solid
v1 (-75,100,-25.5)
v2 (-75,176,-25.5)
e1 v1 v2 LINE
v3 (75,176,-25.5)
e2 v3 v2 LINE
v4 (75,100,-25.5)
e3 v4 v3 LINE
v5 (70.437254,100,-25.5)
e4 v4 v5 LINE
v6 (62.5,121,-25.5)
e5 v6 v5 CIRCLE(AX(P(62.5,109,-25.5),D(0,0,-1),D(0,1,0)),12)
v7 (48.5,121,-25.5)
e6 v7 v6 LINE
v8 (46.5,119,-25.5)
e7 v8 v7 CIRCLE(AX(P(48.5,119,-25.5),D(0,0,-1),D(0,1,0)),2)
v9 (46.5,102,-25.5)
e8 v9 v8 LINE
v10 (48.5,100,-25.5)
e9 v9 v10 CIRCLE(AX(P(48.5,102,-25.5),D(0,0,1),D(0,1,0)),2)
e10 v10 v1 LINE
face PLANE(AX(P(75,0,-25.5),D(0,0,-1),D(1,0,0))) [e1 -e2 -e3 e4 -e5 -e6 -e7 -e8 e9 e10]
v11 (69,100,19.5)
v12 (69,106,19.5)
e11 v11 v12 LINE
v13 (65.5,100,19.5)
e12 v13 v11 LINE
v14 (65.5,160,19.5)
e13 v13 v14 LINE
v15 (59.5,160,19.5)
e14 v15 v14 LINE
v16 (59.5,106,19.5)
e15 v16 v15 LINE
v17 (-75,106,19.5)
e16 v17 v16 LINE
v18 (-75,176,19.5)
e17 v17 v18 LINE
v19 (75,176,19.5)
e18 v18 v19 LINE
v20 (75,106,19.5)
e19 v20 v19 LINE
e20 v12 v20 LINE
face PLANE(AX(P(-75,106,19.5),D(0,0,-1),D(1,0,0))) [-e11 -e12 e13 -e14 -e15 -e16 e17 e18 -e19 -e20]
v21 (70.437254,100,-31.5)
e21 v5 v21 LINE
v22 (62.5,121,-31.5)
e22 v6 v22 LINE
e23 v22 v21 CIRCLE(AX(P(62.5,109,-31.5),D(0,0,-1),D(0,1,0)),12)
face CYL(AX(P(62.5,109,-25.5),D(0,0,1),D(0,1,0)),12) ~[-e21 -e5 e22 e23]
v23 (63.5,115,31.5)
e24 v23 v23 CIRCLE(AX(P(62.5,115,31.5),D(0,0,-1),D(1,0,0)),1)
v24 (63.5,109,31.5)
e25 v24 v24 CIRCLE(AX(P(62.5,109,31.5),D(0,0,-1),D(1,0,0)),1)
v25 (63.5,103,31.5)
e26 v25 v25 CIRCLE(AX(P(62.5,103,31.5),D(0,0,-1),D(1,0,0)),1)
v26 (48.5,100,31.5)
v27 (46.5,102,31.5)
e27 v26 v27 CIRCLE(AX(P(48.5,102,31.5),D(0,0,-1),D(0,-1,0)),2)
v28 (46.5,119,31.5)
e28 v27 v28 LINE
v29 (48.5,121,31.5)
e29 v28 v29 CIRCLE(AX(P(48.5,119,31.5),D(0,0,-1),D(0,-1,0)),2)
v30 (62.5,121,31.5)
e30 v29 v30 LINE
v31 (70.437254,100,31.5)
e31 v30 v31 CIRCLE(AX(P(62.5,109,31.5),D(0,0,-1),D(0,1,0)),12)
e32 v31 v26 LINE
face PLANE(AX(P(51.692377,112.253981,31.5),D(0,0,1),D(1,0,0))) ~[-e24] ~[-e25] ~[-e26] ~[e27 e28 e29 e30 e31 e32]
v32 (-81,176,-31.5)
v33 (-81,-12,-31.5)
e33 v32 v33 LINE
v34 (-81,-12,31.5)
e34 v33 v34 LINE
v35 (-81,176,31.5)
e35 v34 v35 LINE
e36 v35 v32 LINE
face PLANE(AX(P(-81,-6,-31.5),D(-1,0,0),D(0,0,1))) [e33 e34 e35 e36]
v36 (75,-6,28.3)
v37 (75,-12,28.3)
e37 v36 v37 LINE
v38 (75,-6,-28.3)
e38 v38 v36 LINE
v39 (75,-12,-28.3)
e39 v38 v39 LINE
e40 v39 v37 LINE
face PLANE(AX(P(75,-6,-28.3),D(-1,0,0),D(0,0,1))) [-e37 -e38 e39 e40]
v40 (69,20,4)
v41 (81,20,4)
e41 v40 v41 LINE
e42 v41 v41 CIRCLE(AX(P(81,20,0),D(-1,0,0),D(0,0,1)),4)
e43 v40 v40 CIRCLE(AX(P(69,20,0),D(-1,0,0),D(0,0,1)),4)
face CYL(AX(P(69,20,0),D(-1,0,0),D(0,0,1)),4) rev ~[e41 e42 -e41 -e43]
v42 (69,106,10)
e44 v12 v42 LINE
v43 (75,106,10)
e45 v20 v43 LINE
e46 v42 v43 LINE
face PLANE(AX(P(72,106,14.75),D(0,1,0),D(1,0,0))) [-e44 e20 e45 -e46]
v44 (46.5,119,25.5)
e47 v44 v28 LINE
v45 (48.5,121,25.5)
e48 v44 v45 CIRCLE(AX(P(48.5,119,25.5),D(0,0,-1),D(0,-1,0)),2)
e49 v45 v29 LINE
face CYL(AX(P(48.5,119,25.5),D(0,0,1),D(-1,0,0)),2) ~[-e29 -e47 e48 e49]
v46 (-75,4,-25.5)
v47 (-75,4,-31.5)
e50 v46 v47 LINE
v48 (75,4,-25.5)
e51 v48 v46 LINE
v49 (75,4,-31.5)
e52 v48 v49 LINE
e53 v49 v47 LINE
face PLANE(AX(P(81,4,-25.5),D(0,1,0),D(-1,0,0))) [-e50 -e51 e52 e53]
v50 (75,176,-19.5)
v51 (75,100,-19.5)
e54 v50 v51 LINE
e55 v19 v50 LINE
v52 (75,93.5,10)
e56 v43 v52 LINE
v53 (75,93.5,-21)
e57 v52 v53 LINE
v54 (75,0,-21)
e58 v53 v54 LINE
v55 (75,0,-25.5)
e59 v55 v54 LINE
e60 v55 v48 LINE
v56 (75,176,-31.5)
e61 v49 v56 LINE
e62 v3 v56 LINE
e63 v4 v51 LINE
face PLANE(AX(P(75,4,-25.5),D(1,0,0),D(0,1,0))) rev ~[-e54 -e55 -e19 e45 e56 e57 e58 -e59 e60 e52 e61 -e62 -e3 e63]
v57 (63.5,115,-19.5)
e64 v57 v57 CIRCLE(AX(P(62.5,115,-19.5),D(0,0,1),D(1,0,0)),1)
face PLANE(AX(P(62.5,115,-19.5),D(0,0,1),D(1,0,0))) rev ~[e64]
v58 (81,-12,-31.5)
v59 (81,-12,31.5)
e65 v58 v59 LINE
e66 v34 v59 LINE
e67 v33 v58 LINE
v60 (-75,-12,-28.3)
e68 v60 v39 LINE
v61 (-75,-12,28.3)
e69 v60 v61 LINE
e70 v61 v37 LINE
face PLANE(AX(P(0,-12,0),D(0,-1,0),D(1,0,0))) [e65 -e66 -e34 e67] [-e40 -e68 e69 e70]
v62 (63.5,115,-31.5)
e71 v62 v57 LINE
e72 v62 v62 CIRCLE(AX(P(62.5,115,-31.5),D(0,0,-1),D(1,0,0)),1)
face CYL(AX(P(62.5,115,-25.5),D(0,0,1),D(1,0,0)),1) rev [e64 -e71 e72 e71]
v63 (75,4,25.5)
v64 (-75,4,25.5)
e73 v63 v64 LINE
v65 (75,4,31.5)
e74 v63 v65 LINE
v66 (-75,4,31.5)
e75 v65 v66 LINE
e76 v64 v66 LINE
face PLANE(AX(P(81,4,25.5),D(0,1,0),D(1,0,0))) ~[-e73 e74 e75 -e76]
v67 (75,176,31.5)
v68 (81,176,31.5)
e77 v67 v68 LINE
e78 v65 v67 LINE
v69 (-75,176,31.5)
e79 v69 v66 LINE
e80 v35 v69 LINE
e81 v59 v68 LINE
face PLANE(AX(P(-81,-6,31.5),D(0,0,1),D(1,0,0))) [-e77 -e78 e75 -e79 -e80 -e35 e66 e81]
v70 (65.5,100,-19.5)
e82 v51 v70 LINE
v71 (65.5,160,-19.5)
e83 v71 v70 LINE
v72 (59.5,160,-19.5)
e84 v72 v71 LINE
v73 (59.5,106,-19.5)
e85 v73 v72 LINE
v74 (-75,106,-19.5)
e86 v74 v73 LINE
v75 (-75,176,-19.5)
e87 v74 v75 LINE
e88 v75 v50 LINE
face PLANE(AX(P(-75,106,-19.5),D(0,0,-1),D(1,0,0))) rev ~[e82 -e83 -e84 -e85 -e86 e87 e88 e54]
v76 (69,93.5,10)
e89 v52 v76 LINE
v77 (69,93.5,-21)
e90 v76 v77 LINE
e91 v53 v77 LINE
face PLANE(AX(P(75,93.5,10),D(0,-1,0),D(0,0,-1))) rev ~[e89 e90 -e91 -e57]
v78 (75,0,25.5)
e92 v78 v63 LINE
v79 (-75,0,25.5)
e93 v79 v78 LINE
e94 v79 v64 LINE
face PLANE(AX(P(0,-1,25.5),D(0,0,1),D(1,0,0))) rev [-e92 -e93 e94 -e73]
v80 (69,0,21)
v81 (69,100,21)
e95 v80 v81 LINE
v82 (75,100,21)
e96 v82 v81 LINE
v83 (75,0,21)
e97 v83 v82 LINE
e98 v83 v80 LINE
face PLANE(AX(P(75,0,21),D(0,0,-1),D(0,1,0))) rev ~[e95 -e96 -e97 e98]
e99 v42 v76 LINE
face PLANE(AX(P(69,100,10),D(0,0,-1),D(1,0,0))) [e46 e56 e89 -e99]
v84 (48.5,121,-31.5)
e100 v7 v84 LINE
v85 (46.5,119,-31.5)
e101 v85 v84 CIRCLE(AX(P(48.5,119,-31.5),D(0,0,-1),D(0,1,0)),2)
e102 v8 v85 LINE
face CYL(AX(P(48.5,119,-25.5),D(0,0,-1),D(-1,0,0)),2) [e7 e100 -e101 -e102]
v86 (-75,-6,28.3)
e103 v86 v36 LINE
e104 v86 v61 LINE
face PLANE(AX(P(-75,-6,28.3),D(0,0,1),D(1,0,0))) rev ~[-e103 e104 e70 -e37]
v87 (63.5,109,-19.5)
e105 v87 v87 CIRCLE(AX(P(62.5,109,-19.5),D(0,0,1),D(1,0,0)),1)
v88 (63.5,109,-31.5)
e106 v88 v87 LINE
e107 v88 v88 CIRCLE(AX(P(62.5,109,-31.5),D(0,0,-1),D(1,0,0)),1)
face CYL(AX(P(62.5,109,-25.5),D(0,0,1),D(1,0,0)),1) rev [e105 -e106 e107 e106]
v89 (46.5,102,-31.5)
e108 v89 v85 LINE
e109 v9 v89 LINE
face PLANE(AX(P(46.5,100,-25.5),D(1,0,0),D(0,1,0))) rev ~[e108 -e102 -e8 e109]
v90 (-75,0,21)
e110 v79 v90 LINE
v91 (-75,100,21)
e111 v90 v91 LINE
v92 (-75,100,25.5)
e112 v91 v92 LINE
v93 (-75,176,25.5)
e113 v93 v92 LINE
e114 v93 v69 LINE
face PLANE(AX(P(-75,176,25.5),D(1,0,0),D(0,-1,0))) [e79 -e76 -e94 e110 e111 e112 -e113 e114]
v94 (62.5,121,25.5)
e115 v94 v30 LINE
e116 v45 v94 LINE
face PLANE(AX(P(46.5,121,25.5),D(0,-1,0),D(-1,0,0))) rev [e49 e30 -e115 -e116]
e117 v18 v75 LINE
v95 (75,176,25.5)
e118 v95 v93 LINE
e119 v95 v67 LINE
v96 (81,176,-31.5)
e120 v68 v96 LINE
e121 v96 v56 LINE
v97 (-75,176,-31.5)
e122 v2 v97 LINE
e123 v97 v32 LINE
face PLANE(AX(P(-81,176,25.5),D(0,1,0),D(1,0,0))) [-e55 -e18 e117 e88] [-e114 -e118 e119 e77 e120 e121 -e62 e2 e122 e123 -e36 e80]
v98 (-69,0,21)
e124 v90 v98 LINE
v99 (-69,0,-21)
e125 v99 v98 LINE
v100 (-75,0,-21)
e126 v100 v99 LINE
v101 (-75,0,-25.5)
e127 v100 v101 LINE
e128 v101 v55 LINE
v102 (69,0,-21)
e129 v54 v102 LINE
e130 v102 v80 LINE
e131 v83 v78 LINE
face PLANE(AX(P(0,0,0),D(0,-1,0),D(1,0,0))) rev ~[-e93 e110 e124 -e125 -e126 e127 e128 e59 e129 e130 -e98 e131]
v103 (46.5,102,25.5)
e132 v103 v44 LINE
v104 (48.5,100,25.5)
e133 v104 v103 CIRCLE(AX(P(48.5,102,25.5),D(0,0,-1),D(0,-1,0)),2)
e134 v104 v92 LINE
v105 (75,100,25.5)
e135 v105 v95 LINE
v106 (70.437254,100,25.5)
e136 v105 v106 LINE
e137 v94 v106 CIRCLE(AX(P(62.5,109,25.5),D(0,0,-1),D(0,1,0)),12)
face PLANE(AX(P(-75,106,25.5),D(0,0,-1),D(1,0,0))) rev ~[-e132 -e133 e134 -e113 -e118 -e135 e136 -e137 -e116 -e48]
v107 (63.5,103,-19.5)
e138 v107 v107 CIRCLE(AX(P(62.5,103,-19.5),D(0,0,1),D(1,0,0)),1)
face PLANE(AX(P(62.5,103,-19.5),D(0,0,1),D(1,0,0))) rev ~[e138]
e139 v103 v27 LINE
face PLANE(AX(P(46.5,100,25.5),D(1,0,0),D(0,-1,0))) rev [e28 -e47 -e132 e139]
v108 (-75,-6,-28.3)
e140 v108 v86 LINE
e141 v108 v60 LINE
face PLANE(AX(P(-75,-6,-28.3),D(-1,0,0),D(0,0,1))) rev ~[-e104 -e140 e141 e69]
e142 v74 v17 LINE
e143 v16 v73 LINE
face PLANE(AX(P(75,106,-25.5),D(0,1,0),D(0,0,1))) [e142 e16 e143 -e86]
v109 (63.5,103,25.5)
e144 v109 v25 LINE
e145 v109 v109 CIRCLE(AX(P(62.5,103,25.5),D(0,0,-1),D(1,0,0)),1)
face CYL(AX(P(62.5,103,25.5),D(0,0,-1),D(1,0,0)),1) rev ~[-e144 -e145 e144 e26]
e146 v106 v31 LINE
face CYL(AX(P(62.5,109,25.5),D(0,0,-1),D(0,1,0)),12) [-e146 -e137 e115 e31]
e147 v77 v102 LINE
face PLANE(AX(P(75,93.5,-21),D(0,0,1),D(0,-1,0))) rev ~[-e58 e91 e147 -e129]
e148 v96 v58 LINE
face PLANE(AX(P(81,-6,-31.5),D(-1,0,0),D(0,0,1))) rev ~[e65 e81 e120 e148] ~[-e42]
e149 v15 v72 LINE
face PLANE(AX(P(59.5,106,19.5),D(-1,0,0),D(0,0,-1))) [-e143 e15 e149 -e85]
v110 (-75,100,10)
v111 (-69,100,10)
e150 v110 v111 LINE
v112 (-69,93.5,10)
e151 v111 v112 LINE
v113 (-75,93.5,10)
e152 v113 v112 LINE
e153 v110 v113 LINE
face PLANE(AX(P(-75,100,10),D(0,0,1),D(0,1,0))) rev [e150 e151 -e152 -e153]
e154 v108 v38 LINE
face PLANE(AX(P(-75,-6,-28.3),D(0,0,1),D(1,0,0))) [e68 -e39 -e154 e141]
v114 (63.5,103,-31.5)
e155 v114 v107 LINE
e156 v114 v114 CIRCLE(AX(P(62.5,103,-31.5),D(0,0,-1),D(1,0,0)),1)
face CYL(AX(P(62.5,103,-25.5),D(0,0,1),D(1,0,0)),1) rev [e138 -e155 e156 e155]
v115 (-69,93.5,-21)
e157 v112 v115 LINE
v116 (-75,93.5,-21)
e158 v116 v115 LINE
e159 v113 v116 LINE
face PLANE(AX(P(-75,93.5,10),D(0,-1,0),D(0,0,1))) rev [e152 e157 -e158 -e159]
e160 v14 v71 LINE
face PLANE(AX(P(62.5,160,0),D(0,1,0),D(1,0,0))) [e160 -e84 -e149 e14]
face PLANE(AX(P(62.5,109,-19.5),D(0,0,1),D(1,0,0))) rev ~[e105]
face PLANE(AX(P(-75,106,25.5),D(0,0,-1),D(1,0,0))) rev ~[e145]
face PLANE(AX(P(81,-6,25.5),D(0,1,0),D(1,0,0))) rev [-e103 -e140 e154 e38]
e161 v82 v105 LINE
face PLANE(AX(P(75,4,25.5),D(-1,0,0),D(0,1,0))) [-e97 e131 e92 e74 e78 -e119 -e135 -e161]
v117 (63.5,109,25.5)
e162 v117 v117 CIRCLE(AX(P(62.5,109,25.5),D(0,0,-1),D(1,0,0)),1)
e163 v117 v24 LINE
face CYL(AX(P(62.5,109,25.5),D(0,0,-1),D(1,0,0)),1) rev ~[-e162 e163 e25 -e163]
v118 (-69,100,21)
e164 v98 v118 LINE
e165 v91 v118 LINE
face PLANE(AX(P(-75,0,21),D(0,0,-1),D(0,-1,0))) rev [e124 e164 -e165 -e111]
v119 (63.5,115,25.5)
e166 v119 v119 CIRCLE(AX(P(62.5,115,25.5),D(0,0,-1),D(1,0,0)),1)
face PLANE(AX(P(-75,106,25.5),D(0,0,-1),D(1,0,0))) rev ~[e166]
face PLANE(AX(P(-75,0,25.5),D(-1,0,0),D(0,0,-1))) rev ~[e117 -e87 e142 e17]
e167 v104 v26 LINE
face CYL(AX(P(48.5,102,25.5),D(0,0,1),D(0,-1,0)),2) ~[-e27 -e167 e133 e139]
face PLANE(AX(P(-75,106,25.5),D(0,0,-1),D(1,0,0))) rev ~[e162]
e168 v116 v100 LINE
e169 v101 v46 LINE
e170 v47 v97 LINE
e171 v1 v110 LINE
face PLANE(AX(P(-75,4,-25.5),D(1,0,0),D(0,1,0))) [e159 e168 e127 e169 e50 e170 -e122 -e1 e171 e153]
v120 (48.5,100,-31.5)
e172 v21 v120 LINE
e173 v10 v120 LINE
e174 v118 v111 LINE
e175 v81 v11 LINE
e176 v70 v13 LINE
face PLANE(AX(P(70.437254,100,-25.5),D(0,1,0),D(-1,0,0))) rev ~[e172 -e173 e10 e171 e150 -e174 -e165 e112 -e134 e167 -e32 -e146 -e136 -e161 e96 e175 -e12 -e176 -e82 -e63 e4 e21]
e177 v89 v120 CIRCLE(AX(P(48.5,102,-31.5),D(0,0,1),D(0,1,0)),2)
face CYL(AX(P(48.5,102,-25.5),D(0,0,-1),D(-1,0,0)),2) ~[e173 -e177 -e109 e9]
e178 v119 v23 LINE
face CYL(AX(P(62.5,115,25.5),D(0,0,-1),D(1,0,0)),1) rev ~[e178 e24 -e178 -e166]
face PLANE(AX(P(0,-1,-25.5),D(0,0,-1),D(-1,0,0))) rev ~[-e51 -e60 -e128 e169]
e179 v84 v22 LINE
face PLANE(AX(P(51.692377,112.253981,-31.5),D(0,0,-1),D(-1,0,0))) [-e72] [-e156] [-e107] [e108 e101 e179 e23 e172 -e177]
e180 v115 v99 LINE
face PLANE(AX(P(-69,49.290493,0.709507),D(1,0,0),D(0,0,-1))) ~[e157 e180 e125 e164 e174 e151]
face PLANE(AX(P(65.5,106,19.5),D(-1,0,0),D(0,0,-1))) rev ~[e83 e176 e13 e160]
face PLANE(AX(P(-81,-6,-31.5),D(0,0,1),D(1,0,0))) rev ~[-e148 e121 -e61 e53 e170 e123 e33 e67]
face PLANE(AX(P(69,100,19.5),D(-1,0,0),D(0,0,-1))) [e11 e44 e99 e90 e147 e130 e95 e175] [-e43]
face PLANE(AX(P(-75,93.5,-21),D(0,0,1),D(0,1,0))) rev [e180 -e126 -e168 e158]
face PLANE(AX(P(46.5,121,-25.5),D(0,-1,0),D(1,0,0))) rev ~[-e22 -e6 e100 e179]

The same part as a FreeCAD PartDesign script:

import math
import FreeCAD as App
import Part
import Sketcher
from FreeCAD import Vector


def edges_at(feature, points):
    """Names of the edges that pass closest to the given points."""
    edges = feature.Shape.Edges
    near = lambda p: min(range(len(edges)), key=lambda i: edges[i].distToShape(Part.Vertex(*p))[0])
    return sorted({f"Edge{near(p) + 1}" for p in points})

doc = App.newDocument("Part")
body = doc.addObject("PartDesign::Body", "Body")
body.AllowCompound = True

sketch1 = doc.addObject("Sketcher::SketchObject", "Sketch")
body.addObject(sketch1)
sketch1.AttachmentSupport = (doc.XZ_Plane, [""])
sketch1.MapMode = "FlatFace"
sketch1.addGeometry(Part.LineSegment(Vector(-75, -21, 0), Vector(-75, 21, 0)), False)
sketch1.addGeometry(Part.LineSegment(Vector(-75, 21, 0), Vector(75, 21, 0)), False)
sketch1.addGeometry(Part.LineSegment(Vector(75, 21, 0), Vector(75, -21, 0)), False)
sketch1.addGeometry(Part.LineSegment(Vector(75, -21, 0), Vector(-75, -21, 0)), False)
sketch1.addConstraint(Sketcher.Constraint("Coincident", 0, 2, 1, 1))
sketch1.addConstraint(Sketcher.Constraint("Coincident", 1, 2, 2, 1))
sketch1.addConstraint(Sketcher.Constraint("Coincident", 2, 2, 3, 1))
sketch1.addConstraint(Sketcher.Constraint("Coincident", 3, 2, 0, 1))
sketch1.addConstraint(Sketcher.Constraint("Vertical", 0))
sketch1.addConstraint(Sketcher.Constraint("Horizontal", 1))
sketch1.addConstraint(Sketcher.Constraint("Vertical", 2))
sketch1.addConstraint(Sketcher.Constraint("Horizontal", 3))
sketch1.addConstraint(Sketcher.Constraint("Symmetric", 0, 2, 2, 2, -1, 1))
sketch1.addConstraint(Sketcher.Constraint("DistanceX", 1, 1, 1, 2, 150.0))
sketch1.addConstraint(Sketcher.Constraint("DistanceY", 0, 1, 0, 2, 42.0))
pad1 = doc.addObject("PartDesign::Pad", "Pad")
body.addObject(pad1)
pad1.Profile = sketch1
pad1.Length = 3.2
pad1.Reversed = True

sketch2 = doc.addObject("Sketcher::SketchObject", "Sketch001")
body.addObject(sketch2)
sketch2.AttachmentSupport = (doc.XZ_Plane, [""])
sketch2.MapMode = "FlatFace"
sketch2.addGeometry(Part.LineSegment(Vector(-81, 25.5, 0), Vector(-81, -25.5, 0)), False)
sketch2.addGeometry(Part.LineSegment(Vector(-81, -25.5, 0), Vector(81, -25.5, 0)), False)
sketch2.addGeometry(Part.LineSegment(Vector(81, -25.5, 0), Vector(81, 25.5, 0)), False)
sketch2.addGeometry(Part.LineSegment(Vector(81, 25.5, 0), Vector(-81, 25.5, 0)), False)
sketch2.addConstraint(Sketcher.Constraint("Coincident", 0, 2, 1, 1))
sketch2.addConstraint(Sketcher.Constraint("Coincident", 1, 2, 2, 1))
sketch2.addConstraint(Sketcher.Constraint("Coincident", 2, 2, 3, 1))
sketch2.addConstraint(Sketcher.Constraint("Coincident", 3, 2, 0, 1))
sketch2.addConstraint(Sketcher.Constraint("Vertical", 0))
sketch2.addConstraint(Sketcher.Constraint("Horizontal", 1))
sketch2.addConstraint(Sketcher.Constraint("Vertical", 2))
sketch2.addConstraint(Sketcher.Constraint("Horizontal", 3))
sketch2.addConstraint(Sketcher.Constraint("Symmetric", 0, 2, 2, 2, -1, 1))
sketch2.addConstraint(Sketcher.Constraint("DistanceX", 1, 1, 1, 2, 162.0))
sketch2.addConstraint(Sketcher.Constraint("DistanceY", 0, 2, 0, 1, 51.0))
pad2 = doc.addObject("PartDesign::Pad", "Pad001")
body.addObject(pad2)
pad2.Profile = sketch2
pad2.Length = 6

sketch3 = doc.addObject("Sketcher::SketchObject", "Sketch002")
body.addObject(sketch3)
sketch3.AttachmentSupport = (doc.XZ_Plane, [""])
sketch3.MapMode = "FlatFace"
sketch3.addGeometry(Part.LineSegment(Vector(75, -25.5, 0), Vector(75, 25.5, 0)), False)
sketch3.addGeometry(Part.LineSegment(Vector(75, 25.5, 0), Vector(81, 25.5, 0)), False)
sketch3.addGeometry(Part.LineSegment(Vector(81, 25.5, 0), Vector(81, -25.5, 0)), False)
sketch3.addGeometry(Part.LineSegment(Vector(81, -25.5, 0), Vector(75, -25.5, 0)), False)
sketch3.addGeometry(Part.LineSegment(Vector(-81, -25.5, 0), Vector(-81, 25.5, 0)), False)
sketch3.addGeometry(Part.LineSegment(Vector(-81, 25.5, 0), Vector(-75, 25.5, 0)), False)
sketch3.addGeometry(Part.LineSegment(Vector(-75, 25.5, 0), Vector(-75, -25.5, 0)), False)
sketch3.addGeometry(Part.LineSegment(Vector(-75, -25.5, 0), Vector(-81, -25.5, 0)), False)
sketch3.addConstraint(Sketcher.Constraint("Coincident", 0, 2, 1, 1))
sketch3.addConstraint(Sketcher.Constraint("Coincident", 1, 2, 2, 1))
sketch3.addConstraint(Sketcher.Constraint("Coincident", 2, 2, 3, 1))
sketch3.addConstraint(Sketcher.Constraint("Coincident", 3, 2, 0, 1))
sketch3.addConstraint(Sketcher.Constraint("Coincident", 4, 2, 5, 1))
sketch3.addConstraint(Sketcher.Constraint("Coincident", 5, 2, 6, 1))
sketch3.addConstraint(Sketcher.Constraint("Coincident", 6, 2, 7, 1))
sketch3.addConstraint(Sketcher.Constraint("Coincident", 7, 2, 4, 1))
sketch3.addConstraint(Sketcher.Constraint("Vertical", 0))
sketch3.addConstraint(Sketcher.Constraint("Horizontal", 1))
sketch3.addConstraint(Sketcher.Constraint("Vertical", 2))
sketch3.addConstraint(Sketcher.Constraint("Horizontal", 3))
sketch3.addConstraint(Sketcher.Constraint("Vertical", 4))
sketch3.addConstraint(Sketcher.Constraint("Horizontal", 5))
sketch3.addConstraint(Sketcher.Constraint("Vertical", 6))
sketch3.addConstraint(Sketcher.Constraint("Horizontal", 7))
sketch3.addConstraint(Sketcher.Constraint("Symmetric", 2, 2, 4, 2, -1, 1))
sketch3.addConstraint(Sketcher.Constraint("Symmetric", 0, 2, 6, 2, -1, 1))
sketch3.addConstraint(Sketcher.Constraint("Horizontal", 1, 2, 4, 2))
sketch3.addConstraint(Sketcher.Constraint("DistanceX", 1, 1, 1, 2, 6.0))
sketch3.addConstraint(Sketcher.Constraint("DistanceY", 0, 1, 0, 2, 51.0))
sketch3.addConstraint(Sketcher.Constraint("DistanceX", -1, 1, 0, 2, 75.0))
pad3 = doc.addObject("PartDesign::Pad", "Pad002")
body.addObject(pad3)
pad3.Profile = sketch3
pad3.Length = 176
pad3.Reversed = True

sketch4 = doc.addObject("Sketcher::SketchObject", "Sketch003")
body.addObject(sketch4)
sketch4.AttachmentSupport = (doc.YZ_Plane, [""])
sketch4.MapMode = "FlatFace"
sketch4.AttachmentOffset = App.Placement(Vector(0, 0, 75), App.Rotation())
sketch4.addGeometry(Part.LineSegment(Vector(106, -25.5, 0), Vector(100, -25.5, 0)), False)
sketch4.addGeometry(Part.LineSegment(Vector(100, -25.5, 0), Vector(100, 25.5, 0)), False)
sketch4.addGeometry(Part.LineSegment(Vector(100, 25.5, 0), Vector(106, 25.5, 0)), False)
sketch4.addGeometry(Part.LineSegment(Vector(106, 25.5, 0), Vector(106, -25.5, 0)), False)
sketch4.addConstraint(Sketcher.Constraint("Coincident", 0, 2, 1, 1))
sketch4.addConstraint(Sketcher.Constraint("Coincident", 1, 2, 2, 1))
sketch4.addConstraint(Sketcher.Constraint("Coincident", 2, 2, 3, 1))
sketch4.addConstraint(Sketcher.Constraint("Coincident", 3, 2, 0, 1))
sketch4.addConstraint(Sketcher.Constraint("Horizontal", 0))
sketch4.addConstraint(Sketcher.Constraint("Vertical", 1))
sketch4.addConstraint(Sketcher.Constraint("Horizontal", 2))
sketch4.addConstraint(Sketcher.Constraint("Vertical", 3))
sketch4.addConstraint(Sketcher.Constraint("DistanceX", 0, 2, 0, 1, 6.0))
sketch4.addConstraint(Sketcher.Constraint("DistanceY", 1, 1, 1, 2, 51.0))
sketch4.addConstraint(Sketcher.Constraint("DistanceX", -1, 1, 0, 2, 100.0))
sketch4.addConstraint(Sketcher.Constraint("DistanceY", 0, 2, -1, 1, 25.5))
pad4 = doc.addObject("PartDesign::Pad", "Pad003")
body.addObject(pad4)
pad4.Profile = sketch4
pad4.Type = "UpToFirst"
pad4.Reversed = True

sketch5 = doc.addObject("Sketcher::SketchObject", "Sketch004")
body.addObject(sketch5)
sketch5.AttachmentSupport = (doc.XZ_Plane, [""])
sketch5.MapMode = "FlatFace"
sketch5.AttachmentOffset = App.Placement(Vector(0, 0, -100), App.Rotation())
sketch5.addGeometry(Part.LineSegment(Vector(-75, -21, 0), Vector(-75, 21, 0)), False)
sketch5.addGeometry(Part.LineSegment(Vector(-75, 21, 0), Vector(75, 21, 0)), False)
sketch5.addGeometry(Part.LineSegment(Vector(75, 21, 0), Vector(75, -21, 0)), False)
sketch5.addGeometry(Part.LineSegment(Vector(75, -21, 0), Vector(-75, -21, 0)), False)
sketch5.addConstraint(Sketcher.Constraint("Coincident", 0, 2, 1, 1))
sketch5.addConstraint(Sketcher.Constraint("Coincident", 1, 2, 2, 1))
sketch5.addConstraint(Sketcher.Constraint("Coincident", 2, 2, 3, 1))
sketch5.addConstraint(Sketcher.Constraint("Coincident", 3, 2, 0, 1))
sketch5.addConstraint(Sketcher.Constraint("Vertical", 0))
sketch5.addConstraint(Sketcher.Constraint("Horizontal", 1))
sketch5.addConstraint(Sketcher.Constraint("Vertical", 2))
sketch5.addConstraint(Sketcher.Constraint("Horizontal", 3))
sketch5.addConstraint(Sketcher.Constraint("Symmetric", 0, 2, 2, 2, -1, 1))
sketch5.addConstraint(Sketcher.Constraint("DistanceX", 1, 1, 1, 2, 150.0))
sketch5.addConstraint(Sketcher.Constraint("DistanceY", 0, 1, 0, 2, 42.0))
pad5 = doc.addObject("PartDesign::Pad", "Pad004")
body.addObject(pad5)
pad5.Profile = sketch5
pad5.Length = 3.2

sketch6 = doc.addObject("Sketcher::SketchObject", "Sketch005")
body.addObject(sketch6)
sketch6.AttachmentSupport = (doc.XZ_Plane, [""])
sketch6.MapMode = "FlatFace"
sketch6.AttachmentOffset = App.Placement(Vector(0, 0, -106), App.Rotation())
sketch6.addGeometry(Part.LineSegment(Vector(-75, 19.5, 0), Vector(-75, 25.5, 0)), False)
sketch6.addGeometry(Part.LineSegment(Vector(-75, 25.5, 0), Vector(75, 25.5, 0)), False)
sketch6.addGeometry(Part.LineSegment(Vector(75, 25.5, 0), Vector(75, 19.5, 0)), False)
sketch6.addGeometry(Part.LineSegment(Vector(75, 19.5, 0), Vector(-75, 19.5, 0)), False)
sketch6.addGeometry(Part.LineSegment(Vector(-75, -25.5, 0), Vector(-75, -19.5, 0)), False)
sketch6.addGeometry(Part.LineSegment(Vector(-75, -19.5, 0), Vector(75, -19.5, 0)), False)
sketch6.addGeometry(Part.LineSegment(Vector(75, -19.5, 0), Vector(75, -25.5, 0)), False)
sketch6.addGeometry(Part.LineSegment(Vector(75, -25.5, 0), Vector(-75, -25.5, 0)), False)
sketch6.addConstraint(Sketcher.Constraint("Coincident", 0, 2, 1, 1))
sketch6.addConstraint(Sketcher.Constraint("Coincident", 1, 2, 2, 1))
sketch6.addConstraint(Sketcher.Constraint("Coincident", 2, 2, 3, 1))
sketch6.addConstraint(Sketcher.Constraint("Coincident", 3, 2, 0, 1))
sketch6.addConstraint(Sketcher.Constraint("Coincident", 4, 2, 5, 1))
sketch6.addConstraint(Sketcher.Constraint("Coincident", 5, 2, 6, 1))
sketch6.addConstraint(Sketcher.Constraint("Coincident", 6, 2, 7, 1))
sketch6.addConstraint(Sketcher.Constraint("Coincident", 7, 2, 4, 1))
sketch6.addConstraint(Sketcher.Constraint("Vertical", 0))
sketch6.addConstraint(Sketcher.Constraint("Horizontal", 1))
sketch6.addConstraint(Sketcher.Constraint("Vertical", 2))
sketch6.addConstraint(Sketcher.Constraint("Horizontal", 3))
sketch6.addConstraint(Sketcher.Constraint("Vertical", 4))
sketch6.addConstraint(Sketcher.Constraint("Horizontal", 5))
sketch6.addConstraint(Sketcher.Constraint("Vertical", 6))
sketch6.addConstraint(Sketcher.Constraint("Horizontal", 7))
sketch6.addConstraint(Sketcher.Constraint("Symmetric", 2, 2, 4, 2, -1, 1))
sketch6.addConstraint(Sketcher.Constraint("Symmetric", 0, 2, 6, 2, -1, 1))
sketch6.addConstraint(Sketcher.Constraint("Vertical", 3, 2, 4, 2))
sketch6.addConstraint(Sketcher.Constraint("DistanceX", 1, 1, 1, 2, 150.0))
sketch6.addConstraint(Sketcher.Constraint("DistanceY", 0, 1, 0, 2, 6.0))
sketch6.addConstraint(Sketcher.Constraint("DistanceY", 4, 2, 3, 2, 39.0))
pad6 = doc.addObject("PartDesign::Pad", "Pad005")
body.addObject(pad6)
pad6.Profile = sketch6
pad6.Length = 70
pad6.Reversed = True

sketch7 = doc.addObject("Sketcher::SketchObject", "Sketch006")
body.addObject(sketch7)
sketch7.AttachmentSupport = (doc.XZ_Plane, [""])
sketch7.MapMode = "FlatFace"
sketch7.AttachmentOffset = App.Placement(Vector(0, 0, -106), App.Rotation())
sketch7.addGeometry(Part.LineSegment(Vector(65.5, -19.5, 0), Vector(65.5, 19.5, 0)), False)
sketch7.addGeometry(Part.LineSegment(Vector(65.5, 19.5, 0), Vector(75, 19.5, 0)), False)
sketch7.addGeometry(Part.LineSegment(Vector(75, 19.5, 0), Vector(75, -19.5, 0)), False)
sketch7.addGeometry(Part.LineSegment(Vector(75, -19.5, 0), Vector(65.5, -19.5, 0)), False)
sketch7.addGeometry(Part.Circle(Vector(70.25, 14.75, 0), Vector(0, 0, 1), 2.75), False)
sketch7.addGeometry(Part.Circle(Vector(70.25, -14.75, 0), Vector(0, 0, 1), 2.75), False)
sketch7.addConstraint(Sketcher.Constraint("Coincident", 0, 2, 1, 1))
sketch7.addConstraint(Sketcher.Constraint("Coincident", 1, 2, 2, 1))
sketch7.addConstraint(Sketcher.Constraint("Coincident", 2, 2, 3, 1))
sketch7.addConstraint(Sketcher.Constraint("Coincident", 3, 2, 0, 1))
sketch7.addConstraint(Sketcher.Constraint("Vertical", 0))
sketch7.addConstraint(Sketcher.Constraint("Horizontal", 1))
sketch7.addConstraint(Sketcher.Constraint("Vertical", 2))
sketch7.addConstraint(Sketcher.Constraint("Horizontal", 3))
sketch7.addConstraint(Sketcher.Constraint("Equal", 4, 5))
sketch7.addConstraint(Sketcher.Constraint("Symmetric", 4, 3, 5, 3, -1))
sketch7.addConstraint(Sketcher.Constraint("Diameter", 4, 5.5))
sketch7.addConstraint(Sketcher.Constraint("DistanceY", 0, 1, 0, 2, 39.0))
sketch7.addConstraint(Sketcher.Constraint("DistanceX", 1, 1, 1, 2, 9.5))
sketch7.addConstraint(Sketcher.Constraint("DistanceX", -1, 1, 1, 2, 75.0))
sketch7.addConstraint(Sketcher.Constraint("DistanceY", -1, 1, 0, 2, 19.5))
sketch7.addConstraint(Sketcher.Constraint("DistanceY", 5, 3, 4, 3, 29.5))
sketch7.addConstraint(Sketcher.Constraint("DistanceX", -1, 1, 4, 3, 70.25))
pocket1 = doc.addObject("PartDesign::Pocket", "Pocket")
body.addObject(pocket1)
pocket1.Profile = sketch7
pocket1.Type = "UpToFirst"
pocket1.Reversed = True

sketch8 = doc.addObject("Sketcher::SketchObject", "Sketch007")
body.addObject(sketch8)
sketch8.AttachmentSupport = (doc.XZ_Plane, [""])
sketch8.MapMode = "FlatFace"
sketch8.AttachmentOffset = App.Placement(Vector(0, 0, -106), App.Rotation())
sketch8.addGeometry(Part.Circle(Vector(70.25, 14.75, 0), Vector(0, 0, 1), 2.75), False)
sketch8.addConstraint(Sketcher.Constraint("Diameter", 0, 5.5))
sketch8.addConstraint(Sketcher.Constraint("DistanceX", -1, 1, 0, 3, 70.25))
sketch8.addConstraint(Sketcher.Constraint("DistanceY", -1, 1, 0, 3, 14.75))
pocket2 = doc.addObject("PartDesign::Pocket", "Pocket001")
body.addObject(pocket2)
pocket2.Profile = sketch8
pocket2.Type = "UpToFirst"
pocket2.Reversed = True

sketch9 = doc.addObject("Sketcher::SketchObject", "Sketch008")
body.addObject(sketch9)
sketch9.AttachmentSupport = (doc.XZ_Plane, [""])
sketch9.MapMode = "FlatFace"
sketch9.AttachmentOffset = App.Placement(Vector(0, 0, -106), App.Rotation())
sketch9.addGeometry(Part.Circle(Vector(70.25, -14.75, 0), Vector(0, 0, 1), 2.75), False)
sketch9.addConstraint(Sketcher.Constraint("Diameter", 0, 5.5))
sketch9.addConstraint(Sketcher.Constraint("DistanceX", -1, 1, 0, 3, 70.25))
sketch9.addConstraint(Sketcher.Constraint("DistanceY", 0, 3, -1, 1, 14.75))
pocket3 = doc.addObject("PartDesign::Pocket", "Pocket002")
body.addObject(pocket3)
pocket3.Profile = sketch9
pocket3.Type = "UpToFirst"
pocket3.Reversed = True

sketch10 = doc.addObject("Sketcher::SketchObject", "Sketch009")
body.addObject(sketch10)
sketch10.AttachmentSupport = (doc.XZ_Plane, [""])
sketch10.MapMode = "FlatFace"
sketch10.AttachmentOffset = App.Placement(Vector(0, 0, -106), App.Rotation())
sketch10.addGeometry(Part.LineSegment(Vector(59.5, -19.5, 0), Vector(59.5, 19.5, 0)), False)
sketch10.addGeometry(Part.LineSegment(Vector(59.5, 19.5, 0), Vector(65.5, 19.5, 0)), False)
sketch10.addGeometry(Part.LineSegment(Vector(65.5, 19.5, 0), Vector(65.5, -19.5, 0)), False)
sketch10.addGeometry(Part.LineSegment(Vector(65.5, -19.5, 0), Vector(59.5, -19.5, 0)), False)
sketch10.addConstraint(Sketcher.Constraint("Coincident", 0, 2, 1, 1))
sketch10.addConstraint(Sketcher.Constraint("Coincident", 1, 2, 2, 1))
sketch10.addConstraint(Sketcher.Constraint("Coincident", 2, 2, 3, 1))
sketch10.addConstraint(Sketcher.Constraint("Coincident", 3, 2, 0, 1))
sketch10.addConstraint(Sketcher.Constraint("Vertical", 0))
sketch10.addConstraint(Sketcher.Constraint("Horizontal", 1))
sketch10.addConstraint(Sketcher.Constraint("Vertical", 2))
sketch10.addConstraint(Sketcher.Constraint("Horizontal", 3))
sketch10.addConstraint(Sketcher.Constraint("DistanceX", 1, 1, 1, 2, 6.0))
sketch10.addConstraint(Sketcher.Constraint("DistanceY", 0, 1, 0, 2, 39.0))
sketch10.addConstraint(Sketcher.Constraint("DistanceX", -1, 1, 0, 2, 59.5))
sketch10.addConstraint(Sketcher.Constraint("DistanceY", -1, 1, 0, 2, 19.5))
pad7 = doc.addObject("PartDesign::Pad", "Pad006")
body.addObject(pad7)
pad7.Profile = sketch10
pad7.Length = 54
pad7.Reversed = True

sketch11 = doc.addObject("Sketcher::SketchObject", "Sketch010")
body.addObject(sketch11)
sketch11.AttachmentSupport = (doc.XY_Plane, [""])
sketch11.MapMode = "FlatFace"
sketch11.AttachmentOffset = App.Placement(Vector(0, 0, -25.5), App.Rotation())
sketch11.addGeometry(Part.LineSegment(Vector(81, 4, 0), Vector(81, -6, 0)), False)
sketch11.addGeometry(Part.LineSegment(Vector(81, -6, 0), Vector(-81, -6, 0)), False)
sketch11.addGeometry(Part.LineSegment(Vector(-81, -6, 0), Vector(-81, 4, 0)), False)
sketch11.addGeometry(Part.LineSegment(Vector(-81, 4, 0), Vector(81, 4, 0)), False)
sketch11.addConstraint(Sketcher.Constraint("Coincident", 0, 2, 1, 1))
sketch11.addConstraint(Sketcher.Constraint("Coincident", 1, 2, 2, 1))
sketch11.addConstraint(Sketcher.Constraint("Coincident", 2, 2, 3, 1))
sketch11.addConstraint(Sketcher.Constraint("Coincident", 3, 2, 0, 1))
sketch11.addConstraint(Sketcher.Constraint("Vertical", 0))
sketch11.addConstraint(Sketcher.Constraint("Horizontal", 1))
sketch11.addConstraint(Sketcher.Constraint("Vertical", 2))
sketch11.addConstraint(Sketcher.Constraint("Horizontal", 3))
sketch11.addConstraint(Sketcher.Constraint("DistanceX", 1, 2, 1, 1, 162.0))
sketch11.addConstraint(Sketcher.Constraint("DistanceY", 0, 2, 0, 1, 10.0))
sketch11.addConstraint(Sketcher.Constraint("DistanceX", -1, 1, 0, 2, 81.0))
sketch11.addConstraint(Sketcher.Constraint("DistanceY", 0, 2, -1, 1, 6.0))
pad8 = doc.addObject("PartDesign::Pad", "Pad007")
body.addObject(pad8)
pad8.Profile = sketch11
pad8.Length = 6
pad8.Reversed = True
doc.recompute()

mirrored = doc.addObject("PartDesign::Mirrored", "Mirrored")
body.addObject(mirrored)
mirrored.Originals = [pad8]
mirrored.MirrorPlane = (doc.XY_Plane, [""])
body.Tip = mirrored

sketch12 = doc.addObject("Sketcher::SketchObject", "Sketch011")
body.addObject(sketch12)
sketch12.AttachmentSupport = (doc.XZ_Plane, [""])
sketch12.MapMode = "FlatFace"
sketch12.AttachmentOffset = App.Placement(Vector(0, 0, -3.2), App.Rotation())
sketch12.addGeometry(Part.LineSegment(Vector(-75, -21, 0), Vector(-75, 21, 0)), False)
sketch12.addGeometry(Part.LineSegment(Vector(-75, 21, 0), Vector(75, 21, 0)), False)
sketch12.addGeometry(Part.LineSegment(Vector(75, 21, 0), Vector(75, -21, 0)), False)
sketch12.addGeometry(Part.LineSegment(Vector(75, -21, 0), Vector(-75, -21, 0)), False)
sketch12.addConstraint(Sketcher.Constraint("Coincident", 0, 2, 1, 1))
sketch12.addConstraint(Sketcher.Constraint("Coincident", 1, 2, 2, 1))
sketch12.addConstraint(Sketcher.Constraint("Coincident", 2, 2, 3, 1))
sketch12.addConstraint(Sketcher.Constraint("Coincident", 3, 2, 0, 1))
sketch12.addConstraint(Sketcher.Constraint("Vertical", 0))
sketch12.addConstraint(Sketcher.Constraint("Horizontal", 1))
sketch12.addConstraint(Sketcher.Constraint("Vertical", 2))
sketch12.addConstraint(Sketcher.Constraint("Horizontal", 3))
sketch12.addConstraint(Sketcher.Constraint("Symmetric", 0, 2, 2, 2, -1, 1))
sketch12.addConstraint(Sketcher.Constraint("DistanceX", 1, 1, 1, 2, 150.0))
sketch12.addConstraint(Sketcher.Constraint("DistanceY", 0, 1, 0, 2, 42.0))
pocket4 = doc.addObject("PartDesign::Pocket", "Pocket003")
body.addObject(pocket4)
pocket4.Profile = sketch12
pocket4.Length = 3.2
pocket4.Reversed = True

sketch13 = doc.addObject("Sketcher::SketchObject", "Sketch012")
body.addObject(sketch13)
sketch13.AttachmentSupport = (doc.XZ_Plane, [""])
sketch13.MapMode = "FlatFace"
sketch13.AttachmentOffset = App.Placement(Vector(0, 0, -96.8), App.Rotation())
sketch13.addGeometry(Part.LineSegment(Vector(-75, -21, 0), Vector(75, -21, 0)), False)
sketch13.addGeometry(Part.LineSegment(Vector(75, -21, 0), Vector(75, -19.5, 0)), False)
sketch13.addGeometry(Part.LineSegment(Vector(75, -19.5, 0), Vector(65.5, -19.5, 0)), False)
sketch13.addGeometry(Part.LineSegment(Vector(65.5, -19.5, 0), Vector(65.5, 19.5, 0)), False)
sketch13.addGeometry(Part.LineSegment(Vector(65.5, 19.5, 0), Vector(75, 19.5, 0)), False)
sketch13.addGeometry(Part.LineSegment(Vector(75, 19.5, 0), Vector(75, 21, 0)), False)
sketch13.addGeometry(Part.LineSegment(Vector(75, 21, 0), Vector(-75, 21, 0)), False)
sketch13.addGeometry(Part.LineSegment(Vector(-75, 21, 0), Vector(-75, -21, 0)), False)
sketch13.addConstraint(Sketcher.Constraint("Coincident", 0, 2, 1, 1))
sketch13.addConstraint(Sketcher.Constraint("Coincident", 1, 2, 2, 1))
sketch13.addConstraint(Sketcher.Constraint("Coincident", 2, 2, 3, 1))
sketch13.addConstraint(Sketcher.Constraint("Coincident", 3, 2, 4, 1))
sketch13.addConstraint(Sketcher.Constraint("Coincident", 4, 2, 5, 1))
sketch13.addConstraint(Sketcher.Constraint("Coincident", 5, 2, 6, 1))
sketch13.addConstraint(Sketcher.Constraint("Coincident", 6, 2, 7, 1))
sketch13.addConstraint(Sketcher.Constraint("Coincident", 7, 2, 0, 1))
sketch13.addConstraint(Sketcher.Constraint("Horizontal", 0))
sketch13.addConstraint(Sketcher.Constraint("Vertical", 1))
sketch13.addConstraint(Sketcher.Constraint("Horizontal", 2))
sketch13.addConstraint(Sketcher.Constraint("Vertical", 3))
sketch13.addConstraint(Sketcher.Constraint("Horizontal", 4))
sketch13.addConstraint(Sketcher.Constraint("Vertical", 5))
sketch13.addConstraint(Sketcher.Constraint("Horizontal", 6))
sketch13.addConstraint(Sketcher.Constraint("Vertical", 7))
sketch13.addConstraint(Sketcher.Constraint("Symmetric", 0, 2, 6, 2, -1, 1))
sketch13.addConstraint(Sketcher.Constraint("Symmetric", 1, 2, 4, 2, -1))
sketch13.addConstraint(Sketcher.Constraint("DistanceX", 0, 1, 0, 2, 150.0))
sketch13.addConstraint(Sketcher.Constraint("DistanceY", 3, 1, 3, 2, 39.0))
sketch13.addConstraint(Sketcher.Constraint("DistanceY", 7, 2, 7, 1, 42.0))
sketch13.addConstraint(Sketcher.Constraint("DistanceX", 2, 2, 2, 1, 9.5))
pocket5 = doc.addObject("PartDesign::Pocket", "Pocket004")
body.addObject(pocket5)
pocket5.Profile = sketch13
pocket5.Length = 3.2

sketch14 = doc.addObject("Sketcher::SketchObject", "Sketch013")
body.addObject(sketch14)
sketch14.AttachmentSupport = (doc.YZ_Plane, [""])
sketch14.MapMode = "FlatFace"
sketch14.AttachmentOffset = App.Placement(Vector(0, 0, 75), App.Rotation())
sketch14.addGeometry(Part.LineSegment(Vector(93.5, 10, 0), Vector(93.5, -21, 0)), False)
sketch14.addGeometry(Part.LineSegment(Vector(93.5, -21, 0), Vector(0, -21, 0)), False)
sketch14.addGeometry(Part.LineSegment(Vector(0, -21, 0), Vector(0, 21, 0)), False)
sketch14.addGeometry(Part.LineSegment(Vector(0, 21, 0), Vector(100, 21, 0)), False)
sketch14.addGeometry(Part.LineSegment(Vector(100, 21, 0), Vector(100, 10, 0)), False)
sketch14.addGeometry(Part.LineSegment(Vector(100, 10, 0), Vector(93.5, 10, 0)), False)
sketch14.addConstraint(Sketcher.Constraint("Coincident", 0, 2, 1, 1))
sketch14.addConstraint(Sketcher.Constraint("Coincident", 1, 2, 2, 1))
sketch14.addConstraint(Sketcher.Constraint("Coincident", 2, 2, 3, 1))
sketch14.addConstraint(Sketcher.Constraint("Coincident", 3, 2, 4, 1))
sketch14.addConstraint(Sketcher.Constraint("Coincident", 4, 2, 5, 1))
sketch14.addConstraint(Sketcher.Constraint("Coincident", 5, 2, 0, 1))
sketch14.addConstraint(Sketcher.Constraint("Vertical", 0))
sketch14.addConstraint(Sketcher.Constraint("Horizontal", 1))
sketch14.addConstraint(Sketcher.Constraint("Vertical", 2))
sketch14.addConstraint(Sketcher.Constraint("Horizontal", 3))
sketch14.addConstraint(Sketcher.Constraint("Vertical", 4))
sketch14.addConstraint(Sketcher.Constraint("Horizontal", 5))
sketch14.addConstraint(Sketcher.Constraint("Symmetric", 1, 2, 2, 2, -1, 1))
sketch14.addConstraint(Sketcher.Constraint("DistanceX", 3, 1, 3, 2, 100.0))
sketch14.addConstraint(Sketcher.Constraint("DistanceY", 0, 2, 0, 1, 31.0))
sketch14.addConstraint(Sketcher.Constraint("DistanceY", 2, 1, 2, 2, 42.0))
sketch14.addConstraint(Sketcher.Constraint("DistanceX", 1, 2, 1, 1, 93.5))
pad9 = doc.addObject("PartDesign::Pad", "Pad008")
body.addObject(pad9)
pad9.Profile = sketch14
pad9.Length = 6
pad9.Reversed = True
doc.recompute()

mirrored2 = doc.addObject("PartDesign::Mirrored", "Mirrored001")
body.addObject(mirrored2)
mirrored2.Originals = [pad9]
mirrored2.MirrorPlane = (doc.YZ_Plane, [""])
body.Tip = mirrored2

sketch15 = doc.addObject("Sketcher::SketchObject", "Sketch014")
body.addObject(sketch15)
sketch15.AttachmentSupport = (doc.XZ_Plane, [""])
sketch15.MapMode = "FlatFace"
sketch15.AttachmentOffset = App.Placement(Vector(0, 0, -100), App.Rotation())
sketch15.addGeometry(Part.LineSegment(Vector(69, 10, 0), Vector(69, 19.5, 0)), False)
sketch15.addGeometry(Part.LineSegment(Vector(69, 19.5, 0), Vector(75, 19.5, 0)), False)
sketch15.addGeometry(Part.LineSegment(Vector(75, 19.5, 0), Vector(75, 10, 0)), False)
sketch15.addGeometry(Part.LineSegment(Vector(75, 10, 0), Vector(69, 10, 0)), False)
sketch15.addConstraint(Sketcher.Constraint("Coincident", 0, 2, 1, 1))
sketch15.addConstraint(Sketcher.Constraint("Coincident", 1, 2, 2, 1))
sketch15.addConstraint(Sketcher.Constraint("Coincident", 2, 2, 3, 1))
sketch15.addConstraint(Sketcher.Constraint("Coincident", 3, 2, 0, 1))
sketch15.addConstraint(Sketcher.Constraint("Vertical", 0))
sketch15.addConstraint(Sketcher.Constraint("Horizontal", 1))
sketch15.addConstraint(Sketcher.Constraint("Vertical", 2))
sketch15.addConstraint(Sketcher.Constraint("Horizontal", 3))
sketch15.addConstraint(Sketcher.Constraint("DistanceX", 1, 1, 1, 2, 6.0))
sketch15.addConstraint(Sketcher.Constraint("DistanceY", 0, 1, 0, 2, 9.5))
sketch15.addConstraint(Sketcher.Constraint("DistanceX", -1, 1, 0, 2, 69.0))
sketch15.addConstraint(Sketcher.Constraint("DistanceY", -1, 1, 2, 2, 10.0))
pad10 = doc.addObject("PartDesign::Pad", "Pad009")
body.addObject(pad10)
pad10.Profile = sketch15
pad10.Length = 6
pad10.Reversed = True

sketch16 = doc.addObject("Sketcher::SketchObject", "Sketch015")
body.addObject(sketch16)
sketch16.AttachmentSupport = (doc.YZ_Plane, [""])
sketch16.MapMode = "FlatFace"
sketch16.AttachmentOffset = App.Placement(Vector(0, 0, 69), App.Rotation())
sketch16.addGeometry(Part.Circle(Vector(20, 0, 0), Vector(0, 0, 1), 4), False)
sketch16.addConstraint(Sketcher.Constraint("PointOnObject", 0, 3, -1))
sketch16.addConstraint(Sketcher.Constraint("Diameter", 0, 8.0))
sketch16.addConstraint(Sketcher.Constraint("DistanceX", -1, 1, 0, 3, 20.0))
pocket6 = doc.addObject("PartDesign::Pocket", "Pocket005")
body.addObject(pocket6)
pocket6.Profile = sketch16
pocket6.Type = "UpToFirst"
pocket6.Reversed = True

sketch17 = doc.addObject("Sketcher::SketchObject", "Sketch016")
body.addObject(sketch17)
sketch17.AttachmentSupport = (doc.XY_Plane, [""])
sketch17.MapMode = "FlatFace"
sketch17.AttachmentOffset = App.Placement(Vector(0, 0, -19.5), App.Rotation())
sketch17.addGeometry(Part.Circle(Vector(62.5, 103, 0), Vector(0, 0, 1), 1), False)
sketch17.addConstraint(Sketcher.Constraint("Diameter", 0, 2.0))
sketch17.addConstraint(Sketcher.Constraint("DistanceY", -1, 1, 0, 3, 103.0))
sketch17.addConstraint(Sketcher.Constraint("DistanceX", -1, 1, 0, 3, 62.5))
pocket7 = doc.addObject("PartDesign::Pocket", "Pocket006")
body.addObject(pocket7)
pocket7.Profile = sketch17
pocket7.Type = "UpToFirst"

sketch18 = doc.addObject("Sketcher::SketchObject", "Sketch017")
body.addObject(sketch18)
sketch18.AttachmentSupport = (doc.XY_Plane, [""])
sketch18.MapMode = "FlatFace"
sketch18.AttachmentOffset = App.Placement(Vector(0, 0, -19.5), App.Rotation())
sketch18.addGeometry(Part.Circle(Vector(62.5, 109, 0), Vector(0, 0, 1), 1), False)
sketch18.addConstraint(Sketcher.Constraint("Diameter", 0, 2.0))
sketch18.addConstraint(Sketcher.Constraint("DistanceY", -1, 1, 0, 3, 109.0))
sketch18.addConstraint(Sketcher.Constraint("DistanceX", -1, 1, 0, 3, 62.5))
pocket8 = doc.addObject("PartDesign::Pocket", "Pocket007")
body.addObject(pocket8)
pocket8.Profile = sketch18
pocket8.Type = "UpToFirst"

sketch19 = doc.addObject("Sketcher::SketchObject", "Sketch018")
body.addObject(sketch19)
sketch19.AttachmentSupport = (doc.XY_Plane, [""])
sketch19.MapMode = "FlatFace"
sketch19.AttachmentOffset = App.Placement(Vector(0, 0, -19.5), App.Rotation())
sketch19.addGeometry(Part.Circle(Vector(62.5, 115, 0), Vector(0, 0, 1), 1), False)
sketch19.addConstraint(Sketcher.Constraint("Diameter", 0, 2.0))
sketch19.addConstraint(Sketcher.Constraint("DistanceY", -1, 1, 0, 3, 115.0))
sketch19.addConstraint(Sketcher.Constraint("DistanceX", -1, 1, 0, 3, 62.5))
pocket9 = doc.addObject("PartDesign::Pocket", "Pocket008")
body.addObject(pocket9)
pocket9.Profile = sketch19
pocket9.Type = "UpToFirst"

sketch20 = doc.addObject("Sketcher::SketchObject", "Sketch019")
body.addObject(sketch20)
sketch20.AttachmentSupport = (doc.XY_Plane, [""])
sketch20.MapMode = "FlatFace"
sketch20.AttachmentOffset = App.Placement(Vector(0, 0, -25.5), App.Rotation())
sketch20.addGeometry(Part.LineSegment(Vector(-75, 176, 0), Vector(-75, 4, 0)), False)
sketch20.addGeometry(Part.LineSegment(Vector(-75, 4, 0), Vector(-81, 4, 0)), False)
sketch20.addGeometry(Part.LineSegment(Vector(-81, 4, 0), Vector(-81, 176, 0)), False)
sketch20.addGeometry(Part.LineSegment(Vector(-81, 176, 0), Vector(-75, 176, 0)), False)
sketch20.addGeometry(Part.LineSegment(Vector(81, 176, 0), Vector(81, 4, 0)), False)
sketch20.addGeometry(Part.LineSegment(Vector(81, 4, 0), Vector(75, 4, 0)), False)
sketch20.addGeometry(Part.LineSegment(Vector(75, 4, 0), Vector(75, 176, 0)), False)
sketch20.addGeometry(Part.LineSegment(Vector(75, 176, 0), Vector(81, 176, 0)), False)
sketch20.addConstraint(Sketcher.Constraint("Coincident", 0, 2, 1, 1))
sketch20.addConstraint(Sketcher.Constraint("Coincident", 1, 2, 2, 1))
sketch20.addConstraint(Sketcher.Constraint("Coincident", 2, 2, 3, 1))
sketch20.addConstraint(Sketcher.Constraint("Coincident", 3, 2, 0, 1))
sketch20.addConstraint(Sketcher.Constraint("Coincident", 4, 2, 5, 1))
sketch20.addConstraint(Sketcher.Constraint("Coincident", 5, 2, 6, 1))
sketch20.addConstraint(Sketcher.Constraint("Coincident", 6, 2, 7, 1))
sketch20.addConstraint(Sketcher.Constraint("Coincident", 7, 2, 4, 1))
sketch20.addConstraint(Sketcher.Constraint("Vertical", 0))
sketch20.addConstraint(Sketcher.Constraint("Horizontal", 1))
sketch20.addConstraint(Sketcher.Constraint("Vertical", 2))
sketch20.addConstraint(Sketcher.Constraint("Horizontal", 3))
sketch20.addConstraint(Sketcher.Constraint("Vertical", 4))
sketch20.addConstraint(Sketcher.Constraint("Horizontal", 5))
sketch20.addConstraint(Sketcher.Constraint("Vertical", 6))
sketch20.addConstraint(Sketcher.Constraint("Horizontal", 7))
sketch20.addConstraint(Sketcher.Constraint("Symmetric", 1, 2, 4, 2, -2))
sketch20.addConstraint(Sketcher.Constraint("Symmetric", 3, 2, 6, 2, -2))
sketch20.addConstraint(Sketcher.Constraint("DistanceX", 1, 2, 1, 1, 6.0))
sketch20.addConstraint(Sketcher.Constraint("DistanceY", 0, 2, 0, 1, 172.0))
sketch20.addConstraint(Sketcher.Constraint("DistanceX", 0, 2, -1, 1, 75.0))
sketch20.addConstraint(Sketcher.Constraint("DistanceY", -1, 1, 0, 2, 4.0))
pad11 = doc.addObject("PartDesign::Pad", "Pad010")
body.addObject(pad11)
pad11.Profile = sketch20
pad11.Length = 6
pad11.Reversed = True

sketch21 = doc.addObject("Sketcher::SketchObject", "Sketch020")
body.addObject(sketch21)
sketch21.AttachmentSupport = (doc.XY_Plane, [""])
sketch21.MapMode = "FlatFace"
sketch21.AttachmentOffset = App.Placement(Vector(0, 0, 25.5), App.Rotation())
sketch21.addGeometry(Part.LineSegment(Vector(-75, 4, 0), Vector(-81, 4, 0)), False)
sketch21.addGeometry(Part.LineSegment(Vector(-81, 4, 0), Vector(-81, 176, 0)), False)
sketch21.addGeometry(Part.LineSegment(Vector(-81, 176, 0), Vector(-75, 176, 0)), False)
sketch21.addGeometry(Part.LineSegment(Vector(-75, 176, 0), Vector(-75, 4, 0)), False)
sketch21.addGeometry(Part.LineSegment(Vector(75, 4, 0), Vector(75, 176, 0)), False)
sketch21.addGeometry(Part.LineSegment(Vector(75, 176, 0), Vector(81, 176, 0)), False)
sketch21.addGeometry(Part.LineSegment(Vector(81, 176, 0), Vector(81, 4, 0)), False)
sketch21.addGeometry(Part.LineSegment(Vector(81, 4, 0), Vector(75, 4, 0)), False)
sketch21.addConstraint(Sketcher.Constraint("Coincident", 0, 2, 1, 1))
sketch21.addConstraint(Sketcher.Constraint("Coincident", 1, 2, 2, 1))
sketch21.addConstraint(Sketcher.Constraint("Coincident", 2, 2, 3, 1))
sketch21.addConstraint(Sketcher.Constraint("Coincident", 3, 2, 0, 1))
sketch21.addConstraint(Sketcher.Constraint("Coincident", 4, 2, 5, 1))
sketch21.addConstraint(Sketcher.Constraint("Coincident", 5, 2, 6, 1))
sketch21.addConstraint(Sketcher.Constraint("Coincident", 6, 2, 7, 1))
sketch21.addConstraint(Sketcher.Constraint("Coincident", 7, 2, 4, 1))
sketch21.addConstraint(Sketcher.Constraint("Horizontal", 0))
sketch21.addConstraint(Sketcher.Constraint("Vertical", 1))
sketch21.addConstraint(Sketcher.Constraint("Horizontal", 2))
sketch21.addConstraint(Sketcher.Constraint("Vertical", 3))
sketch21.addConstraint(Sketcher.Constraint("Vertical", 4))
sketch21.addConstraint(Sketcher.Constraint("Horizontal", 5))
sketch21.addConstraint(Sketcher.Constraint("Vertical", 6))
sketch21.addConstraint(Sketcher.Constraint("Horizontal", 7))
sketch21.addConstraint(Sketcher.Constraint("Symmetric", 2, 2, 4, 2, -2))
sketch21.addConstraint(Sketcher.Constraint("Symmetric", 0, 2, 6, 2, -2))
sketch21.addConstraint(Sketcher.Constraint("DistanceX", 0, 2, 0, 1, 6.0))
sketch21.addConstraint(Sketcher.Constraint("DistanceY", 1, 1, 1, 2, 172.0))
sketch21.addConstraint(Sketcher.Constraint("DistanceX", 0, 2, -1, 1, 81.0))
sketch21.addConstraint(Sketcher.Constraint("DistanceY", -1, 1, 0, 2, 4.0))
pad12 = doc.addObject("PartDesign::Pad", "Pad011")
body.addObject(pad12)
pad12.Profile = sketch21
pad12.Length = 6

sketch22 = doc.addObject("Sketcher::SketchObject", "Sketch021")
body.addObject(sketch22)
sketch22.AttachmentSupport = (doc.XZ_Plane, [""])
sketch22.MapMode = "FlatFace"
sketch22.AttachmentOffset = App.Placement(Vector(0, 0, 6), App.Rotation())
sketch22.addGeometry(Part.LineSegment(Vector(-81, 31.5, 0), Vector(-81, -31.5, 0)), False)
sketch22.addGeometry(Part.LineSegment(Vector(-81, -31.5, 0), Vector(81, -31.5, 0)), False)
sketch22.addGeometry(Part.LineSegment(Vector(81, -31.5, 0), Vector(81, 31.5, 0)), False)
sketch22.addGeometry(Part.LineSegment(Vector(81, 31.5, 0), Vector(-81, 31.5, 0)), False)
sketch22.addGeometry(Part.LineSegment(Vector(75, -28.3, 0), Vector(-75, -28.3, 0)), False)
sketch22.addGeometry(Part.LineSegment(Vector(-75, -28.3, 0), Vector(-75, 28.3, 0)), False)
sketch22.addGeometry(Part.LineSegment(Vector(-75, 28.3, 0), Vector(75, 28.3, 0)), False)
sketch22.addGeometry(Part.LineSegment(Vector(75, 28.3, 0), Vector(75, -28.3, 0)), False)
sketch22.addConstraint(Sketcher.Constraint("Coincident", 0, 2, 1, 1))
sketch22.addConstraint(Sketcher.Constraint("Coincident", 1, 2, 2, 1))
sketch22.addConstraint(Sketcher.Constraint("Coincident", 2, 2, 3, 1))
sketch22.addConstraint(Sketcher.Constraint("Coincident", 3, 2, 0, 1))
sketch22.addConstraint(Sketcher.Constraint("Coincident", 4, 2, 5, 1))
sketch22.addConstraint(Sketcher.Constraint("Coincident", 5, 2, 6, 1))
sketch22.addConstraint(Sketcher.Constraint("Coincident", 6, 2, 7, 1))
sketch22.addConstraint(Sketcher.Constraint("Coincident", 7, 2, 4, 1))
sketch22.addConstraint(Sketcher.Constraint("Vertical", 0))
sketch22.addConstraint(Sketcher.Constraint("Horizontal", 1))
sketch22.addConstraint(Sketcher.Constraint("Vertical", 2))
sketch22.addConstraint(Sketcher.Constraint("Horizontal", 3))
sketch22.addConstraint(Sketcher.Constraint("Horizontal", 4))
sketch22.addConstraint(Sketcher.Constraint("Vertical", 5))
sketch22.addConstraint(Sketcher.Constraint("Horizontal", 6))
sketch22.addConstraint(Sketcher.Constraint("Vertical", 7))
sketch22.addConstraint(Sketcher.Constraint("Symmetric", 0, 2, 2, 2, -1, 1))
sketch22.addConstraint(Sketcher.Constraint("Symmetric", 4, 2, 6, 2, -1, 1))
sketch22.addConstraint(Sketcher.Constraint("DistanceX", 1, 1, 1, 2, 162.0))
sketch22.addConstraint(Sketcher.Constraint("DistanceX", 4, 2, 4, 1, 150.0))
sketch22.addConstraint(Sketcher.Constraint("DistanceY", 0, 2, 0, 1, 63.0))
sketch22.addConstraint(Sketcher.Constraint("DistanceY", 5, 1, 5, 2, 56.6))
pad13 = doc.addObject("PartDesign::Pad", "Pad012")
body.addObject(pad13)
pad13.Profile = sketch22
pad13.Length = 6

sketch23 = doc.addObject("Sketcher::SketchObject", "Sketch022")
body.addObject(sketch23)
sketch23.AttachmentSupport = (doc.XY_Plane, [""])
sketch23.MapMode = "FlatFace"
sketch23.AttachmentOffset = App.Placement(Vector(0, 0, -25.5), App.Rotation())
sketch23.addGeometry(Part.LineSegment(Vector(46.5, 100, 0), Vector(46.5, 121, 0)), False)
sketch23.addGeometry(Part.LineSegment(Vector(46.5, 121, 0), Vector(62.5, 121, 0)), False)
sketch23.addGeometry(Part.ArcOfCircle(Part.Circle(Vector(62.5, 109, 0), Vector(0, 0, 1), 12), math.radians(-48.590378), math.radians(90)), False)
sketch23.addGeometry(Part.LineSegment(Vector(70.437254, 100, 0), Vector(46.5, 100, 0)), False)
sketch23.addGeometry(Part.Circle(Vector(62.5, 103, 0), Vector(0, 0, 1), 1), False)
sketch23.addGeometry(Part.Circle(Vector(62.5, 109, 0), Vector(0, 0, 1), 1), False)
sketch23.addGeometry(Part.Circle(Vector(62.5, 115, 0), Vector(0, 0, 1), 1), False)
sketch23.addConstraint(Sketcher.Constraint("Coincident", 0, 2, 1, 1))
sketch23.addConstraint(Sketcher.Constraint("Tangent", 1, 2, 2, 2))
sketch23.addConstraint(Sketcher.Constraint("Coincident", 2, 1, 3, 1))
sketch23.addConstraint(Sketcher.Constraint("Coincident", 3, 2, 0, 1))
sketch23.addConstraint(Sketcher.Constraint("Vertical", 0))
sketch23.addConstraint(Sketcher.Constraint("Horizontal", 1))
sketch23.addConstraint(Sketcher.Constraint("Horizontal", 3))
sketch23.addConstraint(Sketcher.Constraint("Coincident", 5, 3, 2, 3))
sketch23.addConstraint(Sketcher.Constraint("Equal", 4, 5))
sketch23.addConstraint(Sketcher.Constraint("Equal", 5, 6))
sketch23.addConstraint(Sketcher.Constraint("Vertical", 2, 3, 4, 3))
sketch23.addConstraint(Sketcher.Constraint("Vertical", 5, 3, 6, 3))
sketch23.addConstraint(Sketcher.Constraint("Diameter", 4, 2.0))
sketch23.addConstraint(Sketcher.Constraint("Radius", 2, 12.0))
sketch23.addConstraint(Sketcher.Constraint("DistanceX", 1, 1, 1, 2, 16.0))
sketch23.addConstraint(Sketcher.Constraint("DistanceY", 0, 1, 0, 2, 21.0))
sketch23.addConstraint(Sketcher.Constraint("DistanceY", -1, 1, 2, 3, 109.0))
sketch23.addConstraint(Sketcher.Constraint("DistanceY", -1, 1, 4, 3, 103.0))
sketch23.addConstraint(Sketcher.Constraint("DistanceY", -1, 1, 6, 3, 115.0))
sketch23.addConstraint(Sketcher.Constraint("DistanceX", -1, 1, 2, 3, 62.5))
pad14 = doc.addObject("PartDesign::Pad", "Pad013")
body.addObject(pad14)
pad14.Profile = sketch23
pad14.Length = 6
pad14.Reversed = True
doc.recompute()

fillet = doc.addObject("PartDesign::Fillet", "Fillet")
body.addObject(fillet)
fillet.Base = (pad14, edges_at(pad14, [(46.5, 121, -28.5), (46.5, 100, -28.5)]))
fillet.Radius = 2
doc.recompute()

mirrored3 = doc.addObject("PartDesign::Mirrored", "Mirrored002")
body.addObject(mirrored3)
mirrored3.Originals = [pad14]
mirrored3.MirrorPlane = (doc.XY_Plane, [""])
body.Tip = mirrored3
doc.recompute()

fillet2 = doc.addObject("PartDesign::Fillet", "Fillet001")
body.addObject(fillet2)
fillet2.Base = (mirrored3, edges_at(mirrored3, [(46.5, 121, 28.5), (46.5, 100, 28.5)]))
fillet2.Radius = 2

doc.recompute()
